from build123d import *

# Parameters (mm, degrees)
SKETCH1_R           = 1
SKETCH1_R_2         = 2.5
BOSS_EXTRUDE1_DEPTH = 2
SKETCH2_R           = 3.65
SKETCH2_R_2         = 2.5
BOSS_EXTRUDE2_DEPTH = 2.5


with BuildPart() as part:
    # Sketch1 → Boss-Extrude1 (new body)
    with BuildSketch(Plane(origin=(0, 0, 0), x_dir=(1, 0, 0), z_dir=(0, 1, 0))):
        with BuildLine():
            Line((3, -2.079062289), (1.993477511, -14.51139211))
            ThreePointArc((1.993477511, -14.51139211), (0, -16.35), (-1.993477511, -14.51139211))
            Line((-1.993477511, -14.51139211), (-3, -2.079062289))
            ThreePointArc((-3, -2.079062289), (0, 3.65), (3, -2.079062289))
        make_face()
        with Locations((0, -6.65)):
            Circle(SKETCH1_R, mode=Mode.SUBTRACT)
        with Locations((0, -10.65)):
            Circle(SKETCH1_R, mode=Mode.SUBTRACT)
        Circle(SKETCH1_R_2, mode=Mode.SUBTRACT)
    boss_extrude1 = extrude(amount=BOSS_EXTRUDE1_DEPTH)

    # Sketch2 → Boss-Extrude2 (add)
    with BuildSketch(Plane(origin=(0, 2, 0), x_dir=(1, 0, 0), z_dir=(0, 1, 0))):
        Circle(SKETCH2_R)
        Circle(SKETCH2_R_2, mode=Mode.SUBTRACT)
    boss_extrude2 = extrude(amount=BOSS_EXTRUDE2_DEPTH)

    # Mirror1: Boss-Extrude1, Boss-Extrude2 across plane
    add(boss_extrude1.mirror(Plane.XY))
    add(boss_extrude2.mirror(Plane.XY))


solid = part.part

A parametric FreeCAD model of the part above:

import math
import FreeCAD as App
import Part
import Sketcher
from FreeCAD import Vector
Q = App.Units.Quantity

doc = App.newDocument("Part")
body = doc.addObject("PartDesign::Body", "Body")

# Sketch on XZ plane
sketch1 = doc.addObject("Sketcher::SketchObject", "Sketch")
body.addObject(sketch1)
sketch1.AttachmentSupport = (doc.XZ_Plane, [""])
sketch1.MapMode = "FlatFace"
sketch1.addGeometry(Part.LineSegment(Vector(1.993478, 14.511392, 0), Vector(3, 2.079062, 0)), False)
sketch1.addGeometry(Part.ArcOfCircle(Part.Circle(Vector(0, 0, 0), Vector(0, 0, 1), 3.65), math.radians(145.277237), math.radians(394.722763)), False)
sketch1.addGeometry(Part.LineSegment(Vector(-3, 2.079062, 0), Vector(-1.993478, 14.511392, 0)), False)
sketch1.addGeometry(Part.ArcOfCircle(Part.Circle(Vector(0, 14.35, 0), Vector(0, 0, 1), 2), math.radians(4.628576), math.radians(175.371424)), False)
sketch1.addGeometry(Part.Circle(Vector(0, 10.65, 0), Vector(0, 0, 1), 1), False)
sketch1.addGeometry(Part.Circle(Vector(0, 6.65, 0), Vector(0, 0, 1), 1), False)
sketch1.addGeometry(Part.Circle(Vector(0, 0, 0), Vector(0, 0, 1), 2.5), False)
sketch1.addConstraint(Sketcher.Constraint("Coincident", 0, 2, 1, 2))
sketch1.addConstraint(Sketcher.Constraint("Coincident", 1, 1, 2, 1))
sketch1.addConstraint(Sketcher.Constraint("Tangent", 2, 2, 3, 2))
sketch1.addConstraint(Sketcher.Constraint("Tangent", 3, 1, 0, 1))
sketch1.addConstraint(Sketcher.Constraint("Coincident", 1, 3, -1, 1))
sketch1.addConstraint(Sketcher.Constraint("Coincident", 6, 3, -1, 1))
sketch1.addConstraint(Sketcher.Constraint("Equal", 4, 5))
sketch1.addConstraint(Sketcher.Constraint("Symmetric", 2, 2, 3, 1, -2))
sketch1.addConstraint(Sketcher.Constraint("PointOnObject", 4, 3, -2))
sketch1.addConstraint(Sketcher.Constraint("PointOnObject", 5, 3, -2))
sketch1.addConstraint(Sketcher.Constraint("Diameter", 4, Q("2 mm")))
sketch1.addConstraint(Sketcher.Constraint("Diameter", 6, Q("5 mm")))
sketch1.addConstraint(Sketcher.Constraint("Radius", 3, Q("2 mm")))
sketch1.addConstraint(Sketcher.Constraint("Radius", 1, Q("3.65 mm")))
sketch1.addConstraint(Sketcher.Constraint("DistanceX", -1, 1, 0, 2, Q("3 mm")))
sketch1.addConstraint(Sketcher.Constraint("DistanceY", 5, 3, 4, 3, Q("4 mm")))
sketch1.addConstraint(Sketcher.Constraint("DistanceY", 4, 3, 3, 3, Q("3.7 mm")))
sketch1.addConstraint(Sketcher.Constraint("DistanceY", -1, 1, 3, 3, Q("14.35 mm")))
pad1 = doc.addObject("PartDesign::Pad", "Pad")
body.addObject(pad1)
pad1.Profile = sketch1
pad1.Length = 2
pad1.Reversed = True

# Sketch on XZ plane
sketch2 = doc.addObject("Sketcher::SketchObject", "Sketch001")
body.addObject(sketch2)
sketch2.AttachmentSupport = (doc.XZ_Plane, [""])
sketch2.MapMode = "FlatFace"
sketch2.AttachmentOffset = App.Placement(Vector(0, 0, -2), App.Rotation())
sketch2.addGeometry(Part.Circle(Vector(0, 0, 0), Vector(0, 0, 1), 3.65), False)
sketch2.addGeometry(Part.Circle(Vector(0, 0, 0), Vector(0, 0, 1), 2.5), False)
sketch2.addConstraint(Sketcher.Constraint("Coincident", 0, 3, -1, 1))
sketch2.addConstraint(Sketcher.Constraint("Coincident", 1, 3, -1, 1))
sketch2.addConstraint(Sketcher.Constraint("Diameter", 1, Q("5 mm")))
sketch2.addConstraint(Sketcher.Constraint("Diameter", 0, Q("7.3 mm")))
pad2 = doc.addObject("PartDesign::Pad", "Pad001")
body.addObject(pad2)
pad2.Profile = sketch2
pad2.Length = 2.5
pad2.Reversed = True
doc.recompute()

mirrored = doc.addObject("PartDesign::Mirrored", "Mirrored")
body.addObject(mirrored)
mirrored.Originals = [pad1, pad2]
mirrored.MirrorPlane = (doc.XY_Plane, [""])
body.Tip = mirrored

doc.recompute()
